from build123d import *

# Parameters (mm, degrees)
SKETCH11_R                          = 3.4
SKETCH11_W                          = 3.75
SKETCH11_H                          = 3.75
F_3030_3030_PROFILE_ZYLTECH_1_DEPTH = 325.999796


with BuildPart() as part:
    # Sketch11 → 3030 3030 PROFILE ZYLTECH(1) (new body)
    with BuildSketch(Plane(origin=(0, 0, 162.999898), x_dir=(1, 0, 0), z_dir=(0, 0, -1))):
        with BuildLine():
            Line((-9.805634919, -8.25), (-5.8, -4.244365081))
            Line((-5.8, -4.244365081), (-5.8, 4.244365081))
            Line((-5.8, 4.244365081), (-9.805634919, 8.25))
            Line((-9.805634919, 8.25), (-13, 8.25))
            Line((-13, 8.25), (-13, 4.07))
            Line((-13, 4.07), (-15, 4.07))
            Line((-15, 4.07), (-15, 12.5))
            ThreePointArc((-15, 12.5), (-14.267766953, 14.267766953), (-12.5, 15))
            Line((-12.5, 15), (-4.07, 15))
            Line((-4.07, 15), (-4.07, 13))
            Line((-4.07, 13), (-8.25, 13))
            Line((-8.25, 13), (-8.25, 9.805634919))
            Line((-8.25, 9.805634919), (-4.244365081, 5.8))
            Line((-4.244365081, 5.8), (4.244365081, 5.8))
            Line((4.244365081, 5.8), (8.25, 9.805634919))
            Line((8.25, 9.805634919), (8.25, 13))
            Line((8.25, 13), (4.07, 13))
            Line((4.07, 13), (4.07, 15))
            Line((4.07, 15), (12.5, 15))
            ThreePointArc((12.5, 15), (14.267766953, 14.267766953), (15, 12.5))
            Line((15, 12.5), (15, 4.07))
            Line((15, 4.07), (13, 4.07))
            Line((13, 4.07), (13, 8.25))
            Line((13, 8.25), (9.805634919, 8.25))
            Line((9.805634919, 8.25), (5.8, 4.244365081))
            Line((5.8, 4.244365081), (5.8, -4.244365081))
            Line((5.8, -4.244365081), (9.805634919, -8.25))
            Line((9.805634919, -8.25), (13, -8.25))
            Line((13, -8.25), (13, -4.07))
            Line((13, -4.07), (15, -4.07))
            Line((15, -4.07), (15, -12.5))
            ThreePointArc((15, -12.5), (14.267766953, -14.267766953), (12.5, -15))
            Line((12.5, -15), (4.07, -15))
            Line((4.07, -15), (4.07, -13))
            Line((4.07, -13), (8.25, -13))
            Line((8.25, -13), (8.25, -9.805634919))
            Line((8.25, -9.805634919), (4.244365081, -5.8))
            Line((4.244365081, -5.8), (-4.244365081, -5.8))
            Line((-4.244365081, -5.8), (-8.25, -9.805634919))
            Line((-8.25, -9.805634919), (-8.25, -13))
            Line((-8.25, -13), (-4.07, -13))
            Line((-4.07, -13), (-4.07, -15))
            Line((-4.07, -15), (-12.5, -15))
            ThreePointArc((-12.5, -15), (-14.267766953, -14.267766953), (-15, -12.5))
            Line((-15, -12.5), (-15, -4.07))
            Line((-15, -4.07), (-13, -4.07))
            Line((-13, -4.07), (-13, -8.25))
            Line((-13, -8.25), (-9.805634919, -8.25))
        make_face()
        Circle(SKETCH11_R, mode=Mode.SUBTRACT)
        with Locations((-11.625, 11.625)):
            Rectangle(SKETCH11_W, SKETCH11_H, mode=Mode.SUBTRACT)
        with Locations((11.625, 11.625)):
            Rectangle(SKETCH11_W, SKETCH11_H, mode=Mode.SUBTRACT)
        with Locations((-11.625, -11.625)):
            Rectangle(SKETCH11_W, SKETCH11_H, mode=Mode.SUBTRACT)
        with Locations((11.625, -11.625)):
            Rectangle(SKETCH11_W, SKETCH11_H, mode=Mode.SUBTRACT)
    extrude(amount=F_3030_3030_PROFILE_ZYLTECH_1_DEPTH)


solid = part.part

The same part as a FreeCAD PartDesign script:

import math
import FreeCAD as App
import Part
import Sketcher
from FreeCAD import Vector


def add_polygon(sketch, points):
    """Adds a closed chain of lines whose ends are joined by coincident constraints."""
    first, n = sketch.GeometryCount, len(points)
    for a, b in zip(points, points[1:] + points[:1]):
        sketch.addGeometry(Part.LineSegment(App.Vector(*a, 0), App.Vector(*b, 0)), False)
    for i in range(n):
        sketch.addConstraint(Sketcher.Constraint("Coincident", first + i, 2, first + (i + 1) % n, 1))

doc = App.newDocument("Part")
body = doc.addObject("PartDesign::Body", "Body")

sketch1 = body.newObject("Sketcher::SketchObject", "Sketch")
sketch1.AttachmentSupport = (doc.getObject("XY_Plane"), [""])
sketch1.MapMode = "FlatFace"
sketch1.AttachmentOffset = App.Placement(Vector(0, 0, 162.999898), App.Rotation())
sketch1.addGeometry(Part.LineSegment(Vector(-5.8, 4.244365, 0), Vector(-9.805635, 8.25, 0)), False)
sketch1.addGeometry(Part.LineSegment(Vector(-9.805635, 8.25, 0), Vector(-13, 8.25, 0)), False)
sketch1.addGeometry(Part.LineSegment(Vector(-13, 8.25, 0), Vector(-13, 4.07, 0)), False)
sketch1.addGeometry(Part.LineSegment(Vector(-13, 4.07, 0), Vector(-15, 4.07, 0)), False)
sketch1.addGeometry(Part.LineSegment(Vector(-15, 4.07, 0), Vector(-15, 12.5, 0)), False)
sketch1.addGeometry(Part.ArcOfCircle(Part.Circle(Vector(-12.5, 12.5, 0), Vector(0, 0, 1), 2.5), math.radians(90), math.radians(180)), False)
sketch1.addGeometry(Part.LineSegment(Vector(-12.5, 15, 0), Vector(-4.07, 15, 0)), False)
sketch1.addGeometry(Part.LineSegment(Vector(-4.07, 15, 0), Vector(-4.07, 13, 0)), False)
sketch1.addGeometry(Part.LineSegment(Vector(-4.07, 13, 0), Vector(-8.25, 13, 0)), False)
sketch1.addGeometry(Part.LineSegment(Vector(-8.25, 13, 0), Vector(-8.25, 9.805635, 0)), False)
sketch1.addGeometry(Part.LineSegment(Vector(-8.25, 9.805635, 0), Vector(-4.244365, 5.8, 0)), False)
sketch1.addGeometry(Part.LineSegment(Vector(-4.244365, 5.8, 0), Vector(4.244365, 5.8, 0)), False)
sketch1.addGeometry(Part.LineSegment(Vector(4.244365, 5.8, 0), Vector(8.25, 9.805635, 0)), False)
sketch1.addGeometry(Part.LineSegment(Vector(8.25, 9.805635, 0), Vector(8.25, 13, 0)), False)
sketch1.addGeometry(Part.LineSegment(Vector(8.25, 13, 0), Vector(4.07, 13, 0)), False)
sketch1.addGeometry(Part.LineSegment(Vector(4.07, 13, 0), Vector(4.07, 15, 0)), False)
sketch1.addGeometry(Part.LineSegment(Vector(4.07, 15, 0), Vector(12.5, 15, 0)), False)
sketch1.addGeometry(Part.ArcOfCircle(Part.Circle(Vector(12.5, 12.5, 0), Vector(0, 0, 1), 2.5), math.radians(0), math.radians(90)), False)
sketch1.addGeometry(Part.LineSegment(Vector(15, 12.5, 0), Vector(15, 4.07, 0)), False)
sketch1.addGeometry(Part.LineSegment(Vector(15, 4.07, 0), Vector(13, 4.07, 0)), False)
sketch1.addGeometry(Part.LineSegment(Vector(13, 4.07, 0), Vector(13, 8.25, 0)), False)
sketch1.addGeometry(Part.LineSegment(Vector(13, 8.25, 0), Vector(9.805635, 8.25, 0)), False)
sketch1.addGeometry(Part.LineSegment(Vector(9.805635, 8.25, 0), Vector(5.8, 4.244365, 0)), False)
sketch1.addGeometry(Part.LineSegment(Vector(5.8, 4.244365, 0), Vector(5.8, -4.244365, 0)), False)
sketch1.addGeometry(Part.LineSegment(Vector(5.8, -4.244365, 0), Vector(9.805635, -8.25, 0)), False)
sketch1.addGeometry(Part.LineSegment(Vector(9.805635, -8.25, 0), Vector(13, -8.25, 0)), False)
sketch1.addGeometry(Part.LineSegment(Vector(13, -8.25, 0), Vector(13, -4.07, 0)), False)
sketch1.addGeometry(Part.LineSegment(Vector(13, -4.07, 0), Vector(15, -4.07, 0)), False)
sketch1.addGeometry(Part.LineSegment(Vector(15, -4.07, 0), Vector(15, -12.5, 0)), False)
sketch1.addGeometry(Part.ArcOfCircle(Part.Circle(Vector(12.5, -12.5, 0), Vector(0, 0, 1), 2.5), math.radians(-90), math.radians(0)), False)
sketch1.addGeometry(Part.LineSegment(Vector(12.5, -15, 0), Vector(4.07, -15, 0)), False)
sketch1.addGeometry(Part.LineSegment(Vector(4.07, -15, 0), Vector(4.07, -13, 0)), False)
sketch1.addGeometry(Part.LineSegment(Vector(4.07, -13, 0), Vector(8.25, -13, 0)), False)
sketch1.addGeometry(Part.LineSegment(Vector(8.25, -13, 0), Vector(8.25, -9.805635, 0)), False)
sketch1.addGeometry(Part.LineSegment(Vector(8.25, -9.805635, 0), Vector(4.244365, -5.8, 0)), False)
sketch1.addGeometry(Part.LineSegment(Vector(4.244365, -5.8, 0), Vector(-4.244365, -5.8, 0)), False)
sketch1.addGeometry(Part.LineSegment(Vector(-4.244365, -5.8, 0), Vector(-8.25, -9.805635, 0)), False)
sketch1.addGeometry(Part.LineSegment(Vector(-8.25, -9.805635, 0), Vector(-8.25, -13, 0)), False)
sketch1.addGeometry(Part.LineSegment(Vector(-8.25, -13, 0), Vector(-4.07, -13, 0)), False)
sketch1.addGeometry(Part.LineSegment(Vector(-4.07, -13, 0), Vector(-4.07, -15, 0)), False)
sketch1.addGeometry(Part.LineSegment(Vector(-4.07, -15, 0), Vector(-12.5, -15, 0)), False)
sketch1.addGeometry(Part.ArcOfCircle(Part.Circle(Vector(-12.5, -12.5, 0), Vector(0, 0, 1), 2.5), math.radians(180), math.radians(270)), False)
sketch1.addGeometry(Part.LineSegment(Vector(-15, -12.5, 0), Vector(-15, -4.07, 0)), False)
sketch1.addGeometry(Part.LineSegment(Vector(-15, -4.07, 0), Vector(-13, -4.07, 0)), False)
sketch1.addGeometry(Part.LineSegment(Vector(-13, -4.07, 0), Vector(-13, -8.25, 0)), False)
sketch1.addGeometry(Part.LineSegment(Vector(-13, -8.25, 0), Vector(-9.805635, -8.25, 0)), False)
sketch1.addGeometry(Part.LineSegment(Vector(-9.805635, -8.25, 0), Vector(-5.8, -4.244365, 0)), False)
sketch1.addGeometry(Part.LineSegment(Vector(-5.8, -4.244365, 0), Vector(-5.8, 4.244365, 0)), False)
add_polygon(sketch1, [(9.75, 13.5), (9.75, 9.75), (13.5, 9.75), (13.5, 13.5)])
add_polygon(sketch1, [(-13.5, 13.5), (-13.5, 9.75), (-9.75, 9.75), (-9.75, 13.5)])
add_polygon(sketch1, [(9.75, -9.75), (9.75, -13.5), (13.5, -13.5), (13.5, -9.75)])
sketch1.addGeometry(Part.Circle(Vector(0, 0, 0), Vector(0, 0, 1), 3.4), False)
add_polygon(sketch1, [(-13.5, -9.75), (-13.5, -13.5), (-9.75, -13.5), (-9.75, -9.75)])
sketch1.addConstraint(Sketcher.Constraint("Coincident", 0, 2, 1, 1))
sketch1.addConstraint(Sketcher.Constraint("Coincident", 1, 2, 2, 1))
sketch1.addConstraint(Sketcher.Constraint("Coincident", 2, 2, 3, 1))
sketch1.addConstraint(Sketcher.Constraint("Coincident", 3, 2, 4, 1))
sketch1.addConstraint(Sketcher.Constraint("Tangent", 4, 2, 5, 2))
sketch1.addConstraint(Sketcher.Constraint("Tangent", 5, 1, 6, 1))
sketch1.addConstraint(Sketcher.Constraint("Coincident", 6, 2, 7, 1))
sketch1.addConstraint(Sketcher.Constraint("Coincident", 7, 2, 8, 1))
sketch1.addConstraint(Sketcher.Constraint("Coincident", 8, 2, 9, 1))
sketch1.addConstraint(Sketcher.Constraint("Coincident", 9, 2, 10, 1))
sketch1.addConstraint(Sketcher.Constraint("Coincident", 10, 2, 11, 1))
sketch1.addConstraint(Sketcher.Constraint("Coincident", 11, 2, 12, 1))
sketch1.addConstraint(Sketcher.Constraint("Coincident", 12, 2, 13, 1))
sketch1.addConstraint(Sketcher.Constraint("Coincident", 13, 2, 14, 1))
sketch1.addConstraint(Sketcher.Constraint("Coincident", 14, 2, 15, 1))
sketch1.addConstraint(Sketcher.Constraint("Coincident", 15, 2, 16, 1))
sketch1.addConstraint(Sketcher.Constraint("Tangent", 16, 2, 17, 2))
sketch1.addConstraint(Sketcher.Constraint("Tangent", 17, 1, 18, 1))
sketch1.addConstraint(Sketcher.Constraint("Coincident", 18, 2, 19, 1))
sketch1.addConstraint(Sketcher.Constraint("Coincident", 19, 2, 20, 1))
sketch1.addConstraint(Sketcher.Constraint("Coincident", 20, 2, 21, 1))
sketch1.addConstraint(Sketcher.Constraint("Coincident", 21, 2, 22, 1))
sketch1.addConstraint(Sketcher.Constraint("Coincident", 22, 2, 23, 1))
sketch1.addConstraint(Sketcher.Constraint("Coincident", 23, 2, 24, 1))
sketch1.addConstraint(Sketcher.Constraint("Coincident", 24, 2, 25, 1))
sketch1.addConstraint(Sketcher.Constraint("Coincident", 25, 2, 26, 1))
sketch1.addConstraint(Sketcher.Constraint("Coincident", 26, 2, 27, 1))
sketch1.addConstraint(Sketcher.Constraint("Coincident", 27, 2, 28, 1))
sketch1.addConstraint(Sketcher.Constraint("Tangent", 28, 2, 29, 2))
sketch1.addConstraint(Sketcher.Constraint("Tangent", 29, 1, 30, 1))
sketch1.addConstraint(Sketcher.Constraint("Coincident", 30, 2, 31, 1))
sketch1.addConstraint(Sketcher.Constraint("Coincident", 31, 2, 32, 1))
sketch1.addConstraint(Sketcher.Constraint("Coincident", 32, 2, 33, 1))
sketch1.addConstraint(Sketcher.Constraint("Coincident", 33, 2, 34, 1))
sketch1.addConstraint(Sketcher.Constraint("Coincident", 34, 2, 35, 1))
sketch1.addConstraint(Sketcher.Constraint("Coincident", 35, 2, 36, 1))
sketch1.addConstraint(Sketcher.Constraint("Coincident", 36, 2, 37, 1))
sketch1.addConstraint(Sketcher.Constraint("Coincident", 37, 2, 38, 1))
sketch1.addConstraint(Sketcher.Constraint("Coincident", 38, 2, 39, 1))
sketch1.addConstraint(Sketcher.Constraint("Coincident", 39, 2, 40, 1))
sketch1.addConstraint(Sketcher.Constraint("Tangent", 40, 2, 41, 2))
sketch1.addConstraint(Sketcher.Constraint("Tangent", 41, 1, 42, 1))
sketch1.addConstraint(Sketcher.Constraint("Coincident", 42, 2, 43, 1))
sketch1.addConstraint(Sketcher.Constraint("Coincident", 43, 2, 44, 1))
sketch1.addConstraint(Sketcher.Constraint("Coincident", 44, 2, 45, 1))
sketch1.addConstraint(Sketcher.Constraint("Coincident", 45, 2, 46, 1))
sketch1.addConstraint(Sketcher.Constraint("Coincident", 46, 2, 47, 1))
sketch1.addConstraint(Sketcher.Constraint("Coincident", 47, 2, 0, 1))
sketch1.addConstraint(Sketcher.Constraint("Horizontal", 1))
sketch1.addConstraint(Sketcher.Constraint("Vertical", 2))
sketch1.addConstraint(Sketcher.Constraint("Horizontal", 3))
sketch1.addConstraint(Sketcher.Constraint("Vertical", 4))
sketch1.addConstraint(Sketcher.Constraint("Horizontal", 6))
sketch1.addConstraint(Sketcher.Constraint("Vertical", 7))
sketch1.addConstraint(Sketcher.Constraint("Horizontal", 8))
sketch1.addConstraint(Sketcher.Constraint("Vertical", 9))
sketch1.addConstraint(Sketcher.Constraint("Horizontal", 11))
sketch1.addConstraint(Sketcher.Constraint("Vertical", 13))
sketch1.addConstraint(Sketcher.Constraint("Horizontal", 14))
sketch1.addConstraint(Sketcher.Constraint("Vertical", 15))
sketch1.addConstraint(Sketcher.Constraint("Horizontal", 16))
sketch1.addConstraint(Sketcher.Constraint("Vertical", 18))
sketch1.addConstraint(Sketcher.Constraint("Horizontal", 19))
sketch1.addConstraint(Sketcher.Constraint("Vertical", 20))
sketch1.addConstraint(Sketcher.Constraint("Horizontal", 21))
sketch1.addConstraint(Sketcher.Constraint("Vertical", 23))
sketch1.addConstraint(Sketcher.Constraint("Horizontal", 25))
sketch1.addConstraint(Sketcher.Constraint("Vertical", 26))
sketch1.addConstraint(Sketcher.Constraint("Horizontal", 27))
sketch1.addConstraint(Sketcher.Constraint("Vertical", 28))
sketch1.addConstraint(Sketcher.Constraint("Horizontal", 30))
sketch1.addConstraint(Sketcher.Constraint("Vertical", 31))
sketch1.addConstraint(Sketcher.Constraint("Horizontal", 32))
sketch1.addConstraint(Sketcher.Constraint("Vertical", 33))
sketch1.addConstraint(Sketcher.Constraint("Horizontal", 35))
sketch1.addConstraint(Sketcher.Constraint("Vertical", 37))
sketch1.addConstraint(Sketcher.Constraint("Horizontal", 38))
sketch1.addConstraint(Sketcher.Constraint("Vertical", 39))
sketch1.addConstraint(Sketcher.Constraint("Horizontal", 40))
sketch1.addConstraint(Sketcher.Constraint("Vertical", 42))
sketch1.addConstraint(Sketcher.Constraint("Horizontal", 43))
sketch1.addConstraint(Sketcher.Constraint("Vertical", 44))
sketch1.addConstraint(Sketcher.Constraint("Horizontal", 45))
sketch1.addConstraint(Sketcher.Constraint("Vertical", 47))
sketch1.addConstraint(Sketcher.Constraint("Vertical", 48))
sketch1.addConstraint(Sketcher.Constraint("Horizontal", 49))
sketch1.addConstraint(Sketcher.Constraint("Vertical", 50))
sketch1.addConstraint(Sketcher.Constraint("Horizontal", 51))
sketch1.addConstraint(Sketcher.Constraint("Vertical", 52))
sketch1.addConstraint(Sketcher.Constraint("Horizontal", 53))
sketch1.addConstraint(Sketcher.Constraint("Vertical", 54))
sketch1.addConstraint(Sketcher.Constraint("Horizontal", 55))
sketch1.addConstraint(Sketcher.Constraint("Vertical", 56))
sketch1.addConstraint(Sketcher.Constraint("Horizontal", 57))
sketch1.addConstraint(Sketcher.Constraint("Vertical", 58))
sketch1.addConstraint(Sketcher.Constraint("Horizontal", 59))
sketch1.addConstraint(Sketcher.Constraint("Vertical", 61))
sketch1.addConstraint(Sketcher.Constraint("Horizontal", 62))
sketch1.addConstraint(Sketcher.Constraint("Vertical", 63))
sketch1.addConstraint(Sketcher.Constraint("Horizontal", 64))
sketch1.addConstraint(Sketcher.Constraint("Coincident", 60, 3, -1, 1))
sketch1.addConstraint(Sketcher.Constraint("Equal", 5, 17))
sketch1.addConstraint(Sketcher.Constraint("Equal", 17, 29))
sketch1.addConstraint(Sketcher.Constraint("Equal", 29, 41))
sketch1.addConstraint(Sketcher.Constraint("Symmetric", 5, 3, 29, 3, -1, 1))
sketch1.addConstraint(Sketcher.Constraint("Symmetric", 17, 3, 41, 3, -1, 1))
sketch1.addConstraint(Sketcher.Constraint("Symmetric", 0, 2, 24, 2, -1, 1))
sketch1.addConstraint(Sketcher.Constraint("Symmetric", 2, 2, 26, 2, -1, 1))
sketch1.addConstraint(Sketcher.Constraint("Symmetric", 7, 2, 31, 2, -1, 1))
sketch1.addConstraint(Sketcher.Constraint("Symmetric", 9, 2, 33, 2, -1, 1))
sketch1.addConstraint(Sketcher.Constraint("Symmetric", 10, 2, 34, 2, -1, 1))
sketch1.addConstraint(Sketcher.Constraint("Symmetric", 12, 2, 36, 2, -1, 1))
sketch1.addConstraint(Sketcher.Constraint("Symmetric", 14, 2, 38, 2, -1, 1))
sketch1.addConstraint(Sketcher.Constraint("Symmetric", 19, 2, 43, 2, -1, 1))
sketch1.addConstraint(Sketcher.Constraint("Symmetric", 21, 2, 45, 2, -1, 1))
sketch1.addConstraint(Sketcher.Constraint("Symmetric", 22, 2, 46, 2, -1, 1))
sketch1.addConstraint(Sketcher.Constraint("Symmetric", 54, 2, 56, 2, -1, 1))
sketch1.addConstraint(Sketcher.Constraint("Symmetric", 52, 2, 58, 2, -1, 1))
sketch1.addConstraint(Sketcher.Constraint("Symmetric", 50, 2, 61, 2, -1, 1))
sketch1.addConstraint(Sketcher.Constraint("Symmetric", 48, 2, 63, 2, -1, 1))
sketch1.addConstraint(Sketcher.Constraint("Symmetric", 5, 3, 17, 3, -2))
sketch1.addConstraint(Sketcher.Constraint("Symmetric", 9, 2, 12, 2, -2))
sketch1.addConstraint(Sketcher.Constraint("Symmetric", 7, 2, 14, 2, -2))
sketch1.addConstraint(Sketcher.Constraint("Symmetric", 2, 2, 19, 2, -2))
sketch1.addConstraint(Sketcher.Constraint("Symmetric", 0, 2, 21, 2, -2))
sketch1.addConstraint(Sketcher.Constraint("Symmetric", 49, 2, 52, 2, -2))
sketch1.addConstraint(Sketcher.Constraint("Symmetric", 51, 2, 54, 2, -2))
sketch1.addConstraint(Sketcher.Constraint("Parallel", 0, 10))
sketch1.addConstraint(Sketcher.Constraint("Perpendicular", 10, 12))
sketch1.addConstraint(Sketcher.Constraint("Parallel", 12, 22))
sketch1.addConstraint(Sketcher.Constraint("Perpendicular", 22, 24))
sketch1.addConstraint(Sketcher.Constraint("Perpendicular", 34, 36))
sketch1.addConstraint(Sketcher.Constraint("Horizontal", 23, 2, 46, 2))
sketch1.addConstraint(Sketcher.Constraint("Equal", 38, 2))
sketch1.addConstraint(Sketcher.Constraint("Equal", 40, 4))
sketch1.addConstraint(Sketcher.Constraint("Equal", 43, 7))
sketch1.addConstraint(Sketcher.Constraint("Equal", 45, 9))
sketch1.addConstraint(Sketcher.Constraint("Equal", 35, 23))
sketch1.addConstraint(Sketcher.Constraint("Equal", 64, 48))
sketch1.addConstraint(Sketcher.Constraint("Equal", 0, 10))
sketch1.addConstraint(Sketcher.Constraint("Diameter", 60, 6.8))
sketch1.addConstraint(Sketcher.Constraint("Radius", 5, 2.5))
sketch1.addConstraint(Sketcher.Constraint("DistanceX", 3, 2, 3, 1, 2.0))
sketch1.addConstraint(Sketcher.Constraint("DistanceX", 1, 2, -1, 1, 13.0))
sketch1.addConstraint(Sketcher.Constraint("DistanceX", 6, 1, 6, 2, 8.43))
sketch1.addConstraint(Sketcher.Constraint("DistanceX", 8, 2, 8, 1, 4.18))
sketch1.addConstraint(Sketcher.Constraint("DistanceX", 49, 1, 49, 2, 3.75))
sketch1.addConstraint(Sketcher.Constraint("DistanceY", -1, 1, 10, 2, 5.8))
sketch1.addConstraint(Sketcher.Constraint("DistanceX", -1, 1, 49, 2, 13.5))
sketch1.addConstraint(Sketcher.Constraint("DistanceY", -1, 1, 50, 2, 13.5))
sketch1.addConstraint(Sketcher.Constraint("DistanceX", 11, 1, 11, 2, 8.48873))
pad1 = body.newObject("PartDesign::Pad", "Pad")
pad1.Profile = sketch1
pad1.Length = 325.999796
pad1.Reversed = True

doc.recompute()
